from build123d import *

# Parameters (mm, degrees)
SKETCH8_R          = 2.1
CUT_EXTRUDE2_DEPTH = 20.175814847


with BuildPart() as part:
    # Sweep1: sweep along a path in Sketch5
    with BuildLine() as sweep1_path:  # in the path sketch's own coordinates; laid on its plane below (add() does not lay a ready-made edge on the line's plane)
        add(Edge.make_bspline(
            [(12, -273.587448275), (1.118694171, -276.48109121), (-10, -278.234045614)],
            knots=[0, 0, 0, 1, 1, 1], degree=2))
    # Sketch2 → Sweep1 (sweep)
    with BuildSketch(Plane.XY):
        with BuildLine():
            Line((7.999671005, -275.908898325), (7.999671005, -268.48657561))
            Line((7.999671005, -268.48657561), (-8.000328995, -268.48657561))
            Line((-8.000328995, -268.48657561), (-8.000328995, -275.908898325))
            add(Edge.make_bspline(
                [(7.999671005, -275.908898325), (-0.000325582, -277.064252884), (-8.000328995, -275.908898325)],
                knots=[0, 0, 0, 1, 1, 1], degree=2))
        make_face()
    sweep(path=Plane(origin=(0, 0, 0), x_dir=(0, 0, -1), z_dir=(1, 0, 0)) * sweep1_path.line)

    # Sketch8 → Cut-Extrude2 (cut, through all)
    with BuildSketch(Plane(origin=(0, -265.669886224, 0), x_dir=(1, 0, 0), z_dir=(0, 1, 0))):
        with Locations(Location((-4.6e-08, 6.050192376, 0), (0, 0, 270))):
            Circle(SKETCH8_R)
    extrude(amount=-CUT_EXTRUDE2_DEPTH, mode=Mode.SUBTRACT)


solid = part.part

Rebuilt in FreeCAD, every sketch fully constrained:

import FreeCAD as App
import Part
import Sketcher
Q = App.Units.Quantity

doc = App.newDocument("Part")
body = doc.addObject("PartDesign::Body", "Body")

# Sketch on XY plane
sketch1 = body.newObject("Sketcher::SketchObject", "Sketch")
sketch1.AttachmentSupport = (doc.getObject("XY_Plane"), [""])
sketch1.MapMode = "FlatFace"
sketch1.addGeometry([
    Part.LineSegment(App.Vector(7.999671, -275.908898, 0), App.Vector(7.999671, -268.486576, 0)),
    Part.LineSegment(App.Vector(7.999671, -268.486576, 0), App.Vector(-8.000329, -268.486576, 0)),
    Part.LineSegment(App.Vector(-8.000329, -268.486576, 0), App.Vector(-8.000329, -275.908898, 0)),
    Part.BSplineCurve([App.Vector(7.999671, -275.908898, 0), App.Vector(-0.000326, -277.064253, 0), App.Vector(-8.000329, -275.908898, 0)], [3, 3], [0, 1], False, 2, [1, 1, 1], False),
], False)
sketch1.addConstraint([
    Sketcher.Constraint("Block", 3),
    Sketcher.Constraint("Coincident", 0, 2, 1, 1),
    Sketcher.Constraint("Coincident", 1, 2, 2, 1),
    Sketcher.Constraint("Coincident", 2, 2, 3, 2),
    Sketcher.Constraint("Coincident", 3, 1, 0, 1),
    Sketcher.Constraint("Vertical", 0),
    Sketcher.Constraint("Horizontal", 1),
    Sketcher.Constraint("Vertical", 2),
    Sketcher.Constraint("DistanceY", 0, 1, 0, 2, Q("7.422323 mm")),
])

# Sketch on YZ plane
sketch2 = body.newObject("Sketcher::SketchObject", "Sketch001")
sketch2.AttachmentSupport = (doc.getObject("YZ_Plane"), [""])
sketch2.MapMode = "FlatFace"
sketch2.addGeometry(Part.BSplineCurve([App.Vector(-273.587448, -12, 0), App.Vector(-276.481091, -1.118694, 0), App.Vector(-278.234046, 10, 0)], [3, 3], [0, 1], False, 2, [1, 1, 1], False), False)
sketch2.addConstraint(Sketcher.Constraint("Block", 0))
doc.recompute()

additivepipe = body.newObject("PartDesign::AdditivePipe", "AdditivePipe")
additivepipe.Profile = sketch1
additivepipe.Spine = (sketch2, ["Edge1"])

# Sketch on XZ plane
sketch3 = body.newObject("Sketcher::SketchObject", "Sketch002")
sketch3.AttachmentSupport = (doc.getObject("XZ_Plane"), [""])
sketch3.MapMode = "FlatFace"
sketch3.AttachmentOffset = App.Placement(App.Vector(0, 0, 265.669886), App.Rotation())
sketch3.addGeometry(Part.Circle(App.Vector(0, -6.050192, 0), App.Vector(0, 0, 1), 2.1), False)
sketch3.addConstraint([
    Sketcher.Constraint("PointOnObject", 0, 3, -2),
    Sketcher.Constraint("Diameter", 0, Q("4.2 mm")),
    Sketcher.Constraint("DistanceY", 0, 3, -1, 1, Q("6.050192 mm")),
])
pocket1 = body.newObject("PartDesign::Pocket", "Pocket")
pocket1.Profile = sketch3
pocket1.Type = "ThroughAll"
pocket1.Reversed = True

doc.recompute()
